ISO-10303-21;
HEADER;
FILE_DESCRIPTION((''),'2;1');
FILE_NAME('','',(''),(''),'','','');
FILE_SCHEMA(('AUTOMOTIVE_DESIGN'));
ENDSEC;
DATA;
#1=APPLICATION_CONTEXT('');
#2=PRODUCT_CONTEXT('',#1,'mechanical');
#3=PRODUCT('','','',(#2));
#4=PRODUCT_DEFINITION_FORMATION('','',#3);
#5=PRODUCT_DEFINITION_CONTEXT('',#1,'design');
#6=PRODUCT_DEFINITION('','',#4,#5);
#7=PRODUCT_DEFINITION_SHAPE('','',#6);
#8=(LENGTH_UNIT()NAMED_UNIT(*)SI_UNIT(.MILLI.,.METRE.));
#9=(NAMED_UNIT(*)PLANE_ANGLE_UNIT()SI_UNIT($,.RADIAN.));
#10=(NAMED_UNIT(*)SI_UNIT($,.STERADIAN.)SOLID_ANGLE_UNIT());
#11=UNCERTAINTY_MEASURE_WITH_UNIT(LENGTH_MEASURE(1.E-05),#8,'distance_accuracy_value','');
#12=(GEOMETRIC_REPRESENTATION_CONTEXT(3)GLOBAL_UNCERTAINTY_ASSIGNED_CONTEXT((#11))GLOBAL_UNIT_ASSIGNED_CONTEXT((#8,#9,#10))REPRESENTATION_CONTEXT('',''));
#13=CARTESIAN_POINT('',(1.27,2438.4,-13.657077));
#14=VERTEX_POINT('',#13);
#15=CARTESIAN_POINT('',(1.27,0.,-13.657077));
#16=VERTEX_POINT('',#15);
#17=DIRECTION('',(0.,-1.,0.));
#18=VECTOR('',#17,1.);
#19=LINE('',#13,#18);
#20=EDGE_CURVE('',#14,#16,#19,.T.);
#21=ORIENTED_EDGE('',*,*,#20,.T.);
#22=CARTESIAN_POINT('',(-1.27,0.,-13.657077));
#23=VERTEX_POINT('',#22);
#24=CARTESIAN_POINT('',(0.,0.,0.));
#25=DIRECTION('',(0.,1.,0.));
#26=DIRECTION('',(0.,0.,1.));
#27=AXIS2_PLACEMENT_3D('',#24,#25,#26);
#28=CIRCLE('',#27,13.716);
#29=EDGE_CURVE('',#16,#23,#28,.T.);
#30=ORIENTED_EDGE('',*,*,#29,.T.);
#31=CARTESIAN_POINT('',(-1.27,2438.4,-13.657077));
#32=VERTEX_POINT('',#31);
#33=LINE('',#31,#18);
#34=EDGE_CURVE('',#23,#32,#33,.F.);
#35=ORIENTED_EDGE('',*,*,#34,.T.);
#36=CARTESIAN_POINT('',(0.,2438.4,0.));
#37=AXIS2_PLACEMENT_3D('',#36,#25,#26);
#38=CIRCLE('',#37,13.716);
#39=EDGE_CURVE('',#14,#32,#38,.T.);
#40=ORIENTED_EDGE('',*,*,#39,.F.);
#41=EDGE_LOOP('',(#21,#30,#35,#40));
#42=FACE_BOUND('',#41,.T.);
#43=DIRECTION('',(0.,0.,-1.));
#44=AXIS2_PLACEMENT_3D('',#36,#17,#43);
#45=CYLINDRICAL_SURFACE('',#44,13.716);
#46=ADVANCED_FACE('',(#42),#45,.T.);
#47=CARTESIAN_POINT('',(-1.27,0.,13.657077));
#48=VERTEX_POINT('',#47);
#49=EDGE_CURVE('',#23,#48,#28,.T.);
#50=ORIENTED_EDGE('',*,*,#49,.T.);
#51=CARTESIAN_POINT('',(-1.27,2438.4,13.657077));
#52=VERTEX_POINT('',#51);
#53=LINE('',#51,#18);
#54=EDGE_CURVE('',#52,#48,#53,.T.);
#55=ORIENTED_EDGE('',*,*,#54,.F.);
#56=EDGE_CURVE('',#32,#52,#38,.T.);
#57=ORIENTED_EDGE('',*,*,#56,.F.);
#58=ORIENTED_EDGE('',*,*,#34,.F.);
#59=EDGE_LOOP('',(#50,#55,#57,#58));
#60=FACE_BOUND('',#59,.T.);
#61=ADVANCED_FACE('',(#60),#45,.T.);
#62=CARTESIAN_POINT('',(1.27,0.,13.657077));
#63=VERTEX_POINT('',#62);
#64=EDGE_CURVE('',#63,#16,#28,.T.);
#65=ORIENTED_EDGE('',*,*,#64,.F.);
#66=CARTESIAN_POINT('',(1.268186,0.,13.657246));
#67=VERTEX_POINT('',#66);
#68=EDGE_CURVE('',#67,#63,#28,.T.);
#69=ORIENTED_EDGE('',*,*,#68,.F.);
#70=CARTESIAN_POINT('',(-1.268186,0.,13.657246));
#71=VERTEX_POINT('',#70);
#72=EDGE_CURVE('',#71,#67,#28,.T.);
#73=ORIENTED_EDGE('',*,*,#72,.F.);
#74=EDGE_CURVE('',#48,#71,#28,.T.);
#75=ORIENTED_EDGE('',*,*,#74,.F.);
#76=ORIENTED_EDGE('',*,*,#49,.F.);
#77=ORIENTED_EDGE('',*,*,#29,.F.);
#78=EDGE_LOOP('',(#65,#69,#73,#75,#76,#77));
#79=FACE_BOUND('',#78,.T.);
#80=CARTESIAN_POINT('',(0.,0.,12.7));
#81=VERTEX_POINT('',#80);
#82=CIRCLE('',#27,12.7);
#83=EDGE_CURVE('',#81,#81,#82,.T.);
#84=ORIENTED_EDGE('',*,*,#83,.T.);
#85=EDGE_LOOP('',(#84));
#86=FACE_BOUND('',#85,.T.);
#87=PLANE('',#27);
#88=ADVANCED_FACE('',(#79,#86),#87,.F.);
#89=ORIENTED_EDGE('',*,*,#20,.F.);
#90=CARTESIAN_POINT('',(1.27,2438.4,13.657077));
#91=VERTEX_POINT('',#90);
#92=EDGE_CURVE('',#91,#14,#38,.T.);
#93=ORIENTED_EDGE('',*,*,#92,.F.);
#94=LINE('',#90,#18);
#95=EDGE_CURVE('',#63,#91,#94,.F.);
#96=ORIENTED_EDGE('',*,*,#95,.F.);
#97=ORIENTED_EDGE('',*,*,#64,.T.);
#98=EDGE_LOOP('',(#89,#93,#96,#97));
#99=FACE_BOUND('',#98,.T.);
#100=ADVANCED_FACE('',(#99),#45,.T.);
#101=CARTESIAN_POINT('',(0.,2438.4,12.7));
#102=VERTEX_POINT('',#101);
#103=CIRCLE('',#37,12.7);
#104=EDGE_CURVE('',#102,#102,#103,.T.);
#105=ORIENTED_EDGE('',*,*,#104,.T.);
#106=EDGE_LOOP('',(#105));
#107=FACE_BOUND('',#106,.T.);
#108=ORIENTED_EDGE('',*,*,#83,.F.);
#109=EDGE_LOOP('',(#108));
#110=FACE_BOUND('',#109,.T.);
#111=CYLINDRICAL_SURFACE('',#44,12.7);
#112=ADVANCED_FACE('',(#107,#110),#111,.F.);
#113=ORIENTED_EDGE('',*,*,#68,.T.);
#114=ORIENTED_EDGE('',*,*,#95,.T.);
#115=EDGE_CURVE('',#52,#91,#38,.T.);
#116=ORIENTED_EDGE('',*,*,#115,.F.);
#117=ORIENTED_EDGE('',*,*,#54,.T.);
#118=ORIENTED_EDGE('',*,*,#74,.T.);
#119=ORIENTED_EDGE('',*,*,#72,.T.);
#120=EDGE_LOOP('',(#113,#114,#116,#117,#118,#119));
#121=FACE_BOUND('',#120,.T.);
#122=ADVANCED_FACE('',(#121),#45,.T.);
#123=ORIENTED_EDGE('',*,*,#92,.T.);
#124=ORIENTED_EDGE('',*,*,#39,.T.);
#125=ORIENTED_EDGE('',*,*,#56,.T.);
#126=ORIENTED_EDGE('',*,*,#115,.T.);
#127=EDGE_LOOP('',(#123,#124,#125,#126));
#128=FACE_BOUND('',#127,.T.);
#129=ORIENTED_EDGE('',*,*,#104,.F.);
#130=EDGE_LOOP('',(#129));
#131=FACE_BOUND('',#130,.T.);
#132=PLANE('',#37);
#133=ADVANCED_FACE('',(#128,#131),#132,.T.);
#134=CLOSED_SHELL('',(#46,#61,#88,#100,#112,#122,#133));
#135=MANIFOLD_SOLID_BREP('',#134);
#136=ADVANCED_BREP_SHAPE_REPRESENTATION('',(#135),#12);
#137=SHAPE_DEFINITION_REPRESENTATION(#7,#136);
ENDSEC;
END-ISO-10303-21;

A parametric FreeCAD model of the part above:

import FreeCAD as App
import Part
import Sketcher

V = App.Vector
Q = App.Units.Quantity

doc = App.newDocument("Part")
body = doc.addObject("PartDesign::Body", "Body")

# Sketch on XZ plane
sketch1 = body.newObject("Sketcher::SketchObject", "Sketch")
sketch1.AttachmentSupport = (doc.getObject("XZ_Plane"), [""])
sketch1.MapMode = "FlatFace"
sketch1.addGeometry(Part.Circle(V(0, 0, 0), V(0, 0, 1), 13.716), False)
sketch1.addGeometry(Part.Circle(V(0, 0, 0), V(0, 0, 1), 12.7), False)
sketch1.addConstraint(Sketcher.Constraint("Coincident", 0, 3, -1, 1))
sketch1.addConstraint(Sketcher.Constraint("Coincident", 1, 3, -1, 1))
sketch1.addConstraint(Sketcher.Constraint("Diameter", 1, Q("1 in")))
sketch1.addConstraint(Sketcher.Constraint("Diameter", 0, Q("1.08 in")))
pad1 = body.newObject("PartDesign::Pad", "Pad")
pad1.Profile = sketch1
pad1.Length = Q("96 in")
pad1.Reversed = True

doc.recompute()
